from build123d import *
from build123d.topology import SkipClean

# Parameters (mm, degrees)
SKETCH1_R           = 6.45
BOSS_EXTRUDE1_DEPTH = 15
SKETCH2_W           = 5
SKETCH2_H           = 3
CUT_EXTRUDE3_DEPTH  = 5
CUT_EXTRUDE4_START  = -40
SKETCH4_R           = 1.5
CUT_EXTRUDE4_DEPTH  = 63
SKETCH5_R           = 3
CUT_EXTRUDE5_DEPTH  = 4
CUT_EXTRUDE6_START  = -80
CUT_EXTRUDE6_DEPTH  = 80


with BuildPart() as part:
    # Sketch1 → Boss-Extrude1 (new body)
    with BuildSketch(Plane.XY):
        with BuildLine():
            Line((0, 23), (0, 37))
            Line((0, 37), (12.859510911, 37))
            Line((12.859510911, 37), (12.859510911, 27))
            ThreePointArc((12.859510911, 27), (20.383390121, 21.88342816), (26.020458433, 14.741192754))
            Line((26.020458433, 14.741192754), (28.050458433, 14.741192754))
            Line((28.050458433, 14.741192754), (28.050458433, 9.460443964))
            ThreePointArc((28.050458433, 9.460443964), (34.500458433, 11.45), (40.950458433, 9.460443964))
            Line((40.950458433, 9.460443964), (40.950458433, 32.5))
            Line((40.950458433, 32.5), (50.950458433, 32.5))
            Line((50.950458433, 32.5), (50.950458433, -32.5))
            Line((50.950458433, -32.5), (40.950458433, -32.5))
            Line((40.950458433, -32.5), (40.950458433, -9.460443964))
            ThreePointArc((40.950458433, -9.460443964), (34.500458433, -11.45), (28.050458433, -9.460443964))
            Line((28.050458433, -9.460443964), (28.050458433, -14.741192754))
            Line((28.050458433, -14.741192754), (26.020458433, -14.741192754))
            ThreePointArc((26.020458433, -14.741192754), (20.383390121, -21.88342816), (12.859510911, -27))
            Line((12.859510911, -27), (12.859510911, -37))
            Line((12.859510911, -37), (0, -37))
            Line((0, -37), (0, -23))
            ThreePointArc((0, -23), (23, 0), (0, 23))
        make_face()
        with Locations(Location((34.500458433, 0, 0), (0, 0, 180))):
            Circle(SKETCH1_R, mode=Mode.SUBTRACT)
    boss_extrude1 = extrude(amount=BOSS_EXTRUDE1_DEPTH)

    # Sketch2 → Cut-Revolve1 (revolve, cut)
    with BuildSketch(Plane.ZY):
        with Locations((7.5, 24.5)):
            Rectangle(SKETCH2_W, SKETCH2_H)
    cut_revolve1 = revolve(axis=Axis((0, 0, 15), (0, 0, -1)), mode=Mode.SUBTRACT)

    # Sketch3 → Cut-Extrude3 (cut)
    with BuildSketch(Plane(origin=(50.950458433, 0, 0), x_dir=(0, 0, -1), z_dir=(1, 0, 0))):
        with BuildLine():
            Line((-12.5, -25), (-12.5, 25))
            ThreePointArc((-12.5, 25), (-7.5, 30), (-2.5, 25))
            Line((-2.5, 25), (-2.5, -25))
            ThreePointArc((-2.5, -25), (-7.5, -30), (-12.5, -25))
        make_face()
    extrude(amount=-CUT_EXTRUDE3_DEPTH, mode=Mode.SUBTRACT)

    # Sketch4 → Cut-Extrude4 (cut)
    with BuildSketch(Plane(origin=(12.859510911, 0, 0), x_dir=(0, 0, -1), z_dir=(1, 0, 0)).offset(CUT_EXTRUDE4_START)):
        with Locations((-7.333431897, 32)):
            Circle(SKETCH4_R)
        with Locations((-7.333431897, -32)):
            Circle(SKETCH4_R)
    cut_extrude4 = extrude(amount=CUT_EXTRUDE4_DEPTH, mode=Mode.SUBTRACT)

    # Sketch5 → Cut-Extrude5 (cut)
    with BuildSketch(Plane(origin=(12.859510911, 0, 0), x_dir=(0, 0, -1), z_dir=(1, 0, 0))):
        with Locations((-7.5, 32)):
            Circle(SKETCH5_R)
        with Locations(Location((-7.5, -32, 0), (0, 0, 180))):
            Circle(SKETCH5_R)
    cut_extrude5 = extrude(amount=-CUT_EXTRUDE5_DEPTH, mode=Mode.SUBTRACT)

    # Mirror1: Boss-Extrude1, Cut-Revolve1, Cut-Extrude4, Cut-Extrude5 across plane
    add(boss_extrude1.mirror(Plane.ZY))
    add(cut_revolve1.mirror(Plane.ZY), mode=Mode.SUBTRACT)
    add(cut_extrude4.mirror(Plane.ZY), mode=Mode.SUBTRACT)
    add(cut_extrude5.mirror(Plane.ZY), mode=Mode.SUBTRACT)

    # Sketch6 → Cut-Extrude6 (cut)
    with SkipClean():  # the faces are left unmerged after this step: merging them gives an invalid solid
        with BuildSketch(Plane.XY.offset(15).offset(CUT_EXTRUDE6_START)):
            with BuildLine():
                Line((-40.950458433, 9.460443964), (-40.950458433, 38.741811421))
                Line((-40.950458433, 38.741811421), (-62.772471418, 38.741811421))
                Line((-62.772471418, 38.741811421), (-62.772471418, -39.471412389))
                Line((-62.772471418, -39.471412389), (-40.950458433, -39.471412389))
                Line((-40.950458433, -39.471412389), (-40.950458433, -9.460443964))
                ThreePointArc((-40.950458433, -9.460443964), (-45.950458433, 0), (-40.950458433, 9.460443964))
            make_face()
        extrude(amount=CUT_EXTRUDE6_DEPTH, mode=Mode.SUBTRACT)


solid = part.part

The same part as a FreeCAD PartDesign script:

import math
import FreeCAD as App
import Part
import Sketcher
from FreeCAD import Vector
Q = App.Units.Quantity


def add_polygon(sketch, points):
    """Adds a closed chain of lines whose ends are joined by coincident constraints."""
    first, n = sketch.GeometryCount, len(points)
    for a, b in zip(points, points[1:] + points[:1]):
        sketch.addGeometry(Part.LineSegment(App.Vector(*a, 0), App.Vector(*b, 0)), False)
    for i in range(n):
        sketch.addConstraint(Sketcher.Constraint("Coincident", first + i, 2, first + (i + 1) % n, 1))

doc = App.newDocument("Part")
body = doc.addObject("PartDesign::Body", "Body")

sketch1 = body.newObject("Sketcher::SketchObject", "Sketch")
sketch1.AttachmentSupport = (doc.getObject("XY_Plane"), [""])
sketch1.MapMode = "FlatFace"
sketch1.addGeometry(Part.LineSegment(Vector(0, 37, 0), Vector(0, 23, 0)), False)
sketch1.addGeometry(Part.ArcOfCircle(Part.Circle(Vector(0, 0, 0), Vector(0, 0, 1), 23), math.radians(-90), math.radians(90)), False)
sketch1.addGeometry(Part.LineSegment(Vector(0, -23, 0), Vector(0, -37, 0)), False)
sketch1.addGeometry(Part.LineSegment(Vector(0, -37, 0), Vector(12.859511, -37, 0)), False)
sketch1.addGeometry(Part.LineSegment(Vector(12.859511, -37, 0), Vector(12.859511, -27, 0)), False)
sketch1.addGeometry(Part.ArcOfCircle(Part.Circle(Vector(0, 0, 0), Vector(0, 0, 1), 29.90597), math.radians(-64.532559), math.radians(-29.532559)), False)
sketch1.addGeometry(Part.LineSegment(Vector(26.020458, -14.741193, 0), Vector(28.050458, -14.741193, 0)), False)
sketch1.addGeometry(Part.LineSegment(Vector(28.050458, -14.741193, 0), Vector(28.050458, -9.460444, 0)), False)
sketch1.addGeometry(Part.ArcOfCircle(Part.Circle(Vector(34.500458, 0, 0), Vector(0, 0, 1), 11.45), math.radians(-124.285625), math.radians(-55.714375)), False)
sketch1.addGeometry(Part.LineSegment(Vector(40.950458, -9.460444, 0), Vector(40.950458, -32.5, 0)), False)
sketch1.addGeometry(Part.LineSegment(Vector(40.950458, -32.5, 0), Vector(50.950458, -32.5, 0)), False)
sketch1.addGeometry(Part.LineSegment(Vector(50.950458, -32.5, 0), Vector(50.950458, 32.5, 0)), False)
sketch1.addGeometry(Part.LineSegment(Vector(50.950458, 32.5, 0), Vector(40.950458, 32.5, 0)), False)
sketch1.addGeometry(Part.LineSegment(Vector(40.950458, 32.5, 0), Vector(40.950458, 9.460444, 0)), False)
sketch1.addGeometry(Part.ArcOfCircle(Part.Circle(Vector(34.500458, 0, 0), Vector(0, 0, 1), 11.45), math.radians(55.714375), math.radians(124.285625)), False)
sketch1.addGeometry(Part.LineSegment(Vector(28.050458, 9.460444, 0), Vector(28.050458, 14.741193, 0)), False)
sketch1.addGeometry(Part.LineSegment(Vector(28.050458, 14.741193, 0), Vector(26.020458, 14.741193, 0)), False)
sketch1.addGeometry(Part.ArcOfCircle(Part.Circle(Vector(0, 0, 0), Vector(0, 0, 1), 29.90597), math.radians(29.532559), math.radians(64.532559)), False)
sketch1.addGeometry(Part.LineSegment(Vector(12.859511, 27, 0), Vector(12.859511, 37, 0)), False)
sketch1.addGeometry(Part.LineSegment(Vector(12.859511, 37, 0), Vector(0, 37, 0)), False)
sketch1.addGeometry(Part.Circle(Vector(34.500458, 0, 0), Vector(0, 0, 1), 6.45), False)
sketch1.addConstraint(Sketcher.Constraint("Coincident", 0, 2, 1, 2))
sketch1.addConstraint(Sketcher.Constraint("Coincident", 1, 1, 2, 1))
sketch1.addConstraint(Sketcher.Constraint("Coincident", 2, 2, 3, 1))
sketch1.addConstraint(Sketcher.Constraint("Coincident", 3, 2, 4, 1))
sketch1.addConstraint(Sketcher.Constraint("Coincident", 4, 2, 5, 1))
sketch1.addConstraint(Sketcher.Constraint("Coincident", 5, 2, 6, 1))
sketch1.addConstraint(Sketcher.Constraint("Coincident", 6, 2, 7, 1))
sketch1.addConstraint(Sketcher.Constraint("Coincident", 7, 2, 8, 1))
sketch1.addConstraint(Sketcher.Constraint("Coincident", 8, 2, 9, 1))
sketch1.addConstraint(Sketcher.Constraint("Coincident", 9, 2, 10, 1))
sketch1.addConstraint(Sketcher.Constraint("Coincident", 10, 2, 11, 1))
sketch1.addConstraint(Sketcher.Constraint("Coincident", 11, 2, 12, 1))
sketch1.addConstraint(Sketcher.Constraint("Coincident", 12, 2, 13, 1))
sketch1.addConstraint(Sketcher.Constraint("Coincident", 13, 2, 14, 1))
sketch1.addConstraint(Sketcher.Constraint("Coincident", 14, 2, 15, 1))
sketch1.addConstraint(Sketcher.Constraint("Coincident", 15, 2, 16, 1))
sketch1.addConstraint(Sketcher.Constraint("Coincident", 16, 2, 17, 1))
sketch1.addConstraint(Sketcher.Constraint("Coincident", 17, 2, 18, 1))
sketch1.addConstraint(Sketcher.Constraint("Coincident", 18, 2, 19, 1))
sketch1.addConstraint(Sketcher.Constraint("Coincident", 19, 2, 0, 1))
sketch1.addConstraint(Sketcher.Constraint("Vertical", 0))
sketch1.addConstraint(Sketcher.Constraint("Vertical", 2))
sketch1.addConstraint(Sketcher.Constraint("Horizontal", 3))
sketch1.addConstraint(Sketcher.Constraint("Vertical", 4))
sketch1.addConstraint(Sketcher.Constraint("Horizontal", 6))
sketch1.addConstraint(Sketcher.Constraint("Vertical", 7))
sketch1.addConstraint(Sketcher.Constraint("Vertical", 9))
sketch1.addConstraint(Sketcher.Constraint("Horizontal", 10))
sketch1.addConstraint(Sketcher.Constraint("Vertical", 11))
sketch1.addConstraint(Sketcher.Constraint("Horizontal", 12))
sketch1.addConstraint(Sketcher.Constraint("Vertical", 13))
sketch1.addConstraint(Sketcher.Constraint("Vertical", 15))
sketch1.addConstraint(Sketcher.Constraint("Horizontal", 16))
sketch1.addConstraint(Sketcher.Constraint("Vertical", 18))
sketch1.addConstraint(Sketcher.Constraint("Horizontal", 19))
sketch1.addConstraint(Sketcher.Constraint("Coincident", 1, 3, -1, 1))
sketch1.addConstraint(Sketcher.Constraint("Coincident", 5, 3, -1, 1))
sketch1.addConstraint(Sketcher.Constraint("Coincident", 17, 3, -1, 1))
sketch1.addConstraint(Sketcher.Constraint("Coincident", 14, 3, 8, 3))
sketch1.addConstraint(Sketcher.Constraint("Coincident", 20, 3, 8, 3))
sketch1.addConstraint(Sketcher.Constraint("Equal", 8, 14))
sketch1.addConstraint(Sketcher.Constraint("Equal", 5, 17))
sketch1.addConstraint(Sketcher.Constraint("Symmetric", 2, 2, 19, 2, -1, 1))
sketch1.addConstraint(Sketcher.Constraint("Symmetric", 9, 2, 12, 2, -1))
sketch1.addConstraint(Sketcher.Constraint("Symmetric", 7, 2, 14, 2, -1))
sketch1.addConstraint(Sketcher.Constraint("PointOnObject", 0, 2, -2))
sketch1.addConstraint(Sketcher.Constraint("Horizontal", 7, 2, 8, 2))
sketch1.addConstraint(Sketcher.Constraint("Vertical", 5, 2, 16, 2))
sketch1.addConstraint(Sketcher.Constraint("Vertical", 4, 2, 17, 2))
sketch1.addConstraint(Sketcher.Constraint("Equal", 12, 4))
sketch1.addConstraint(Sketcher.Constraint("Radius", 1, Q("23 mm")))
sketch1.addConstraint(Sketcher.Constraint("Diameter", 20, Q("12.9 mm")))
sketch1.addConstraint(Sketcher.Constraint("DistanceX", 10, 1, 10, 2, Q("10 mm")))
sketch1.addConstraint(Sketcher.Constraint("DistanceY", 0, 2, 0, 1, Q("14 mm")))
sketch1.addConstraint(Sketcher.Constraint("DistanceY", 11, 1, 11, 2, Q("65 mm")))
sketch1.addConstraint(Sketcher.Constraint("Radius", 8, Q("11.45 mm")))
sketch1.addConstraint(Sketcher.Constraint("DistanceX", 6, 1, 6, 2, Q("2.03 mm")))
sketch1.addConstraint(Sketcher.Constraint("DistanceX", 7, 2, 8, 2, Q("12.9 mm")))
sketch1.addConstraint(Sketcher.Constraint("Radius", 5, Q("29.90597 mm")))
sketch1.addConstraint(Sketcher.Constraint("DistanceY", 7, 1, 7, 2, Q("5.280749 mm")))
pad1 = body.newObject("PartDesign::Pad", "Pad")
pad1.Profile = sketch1
pad1.Length = 15

sketch2 = body.newObject("Sketcher::SketchObject", "Sketch001")
sketch2.AttachmentSupport = (doc.getObject("YZ_Plane"), [""])
sketch2.MapMode = "FlatFace"
add_polygon(sketch2, [(26, 5), (23, 5), (23, 10), (26, 10)])
sketch2.addConstraint(Sketcher.Constraint("Horizontal", 0))
sketch2.addConstraint(Sketcher.Constraint("Vertical", 1))
sketch2.addConstraint(Sketcher.Constraint("Horizontal", 2))
sketch2.addConstraint(Sketcher.Constraint("Vertical", 3))
sketch2.addConstraint(Sketcher.Constraint("DistanceX", 0, 2, 0, 1, Q("3 mm")))
sketch2.addConstraint(Sketcher.Constraint("DistanceY", 1, 1, 1, 2, Q("5 mm")))
sketch2.addConstraint(Sketcher.Constraint("DistanceX", -1, 1, 0, 2, Q("23 mm")))
sketch2.addConstraint(Sketcher.Constraint("DistanceY", -1, 1, 0, 2, Q("5 mm")))
groove = body.newObject("PartDesign::Groove", "Groove")
groove.Profile = sketch2
groove.ReferenceAxis = (sketch2, ["V_Axis"])
groove.Angle = 360

sketch3 = body.newObject("Sketcher::SketchObject", "Sketch002")
sketch3.AttachmentSupport = (doc.getObject("YZ_Plane"), [""])
sketch3.MapMode = "FlatFace"
sketch3.AttachmentOffset = App.Placement(Vector(0, 0, 50.950458), App.Rotation())
sketch3.addGeometry(Part.LineSegment(Vector(25, 12.5, 0), Vector(-25, 12.5, 0)), False)
sketch3.addGeometry(Part.ArcOfCircle(Part.Circle(Vector(-25, 7.5, 0), Vector(0, 0, 1), 5), math.radians(90), math.radians(270)), False)
sketch3.addGeometry(Part.LineSegment(Vector(-25, 2.5, 0), Vector(25, 2.5, 0)), False)
sketch3.addGeometry(Part.ArcOfCircle(Part.Circle(Vector(25, 7.5, 0), Vector(0, 0, 1), 5), math.radians(-90), math.radians(90)), False)
sketch3.addConstraint(Sketcher.Constraint("Tangent", 0, 2, 1, 1))
sketch3.addConstraint(Sketcher.Constraint("Tangent", 1, 2, 2, 1))
sketch3.addConstraint(Sketcher.Constraint("Tangent", 2, 2, 3, 1))
sketch3.addConstraint(Sketcher.Constraint("Tangent", 3, 2, 0, 1))
sketch3.addConstraint(Sketcher.Constraint("Horizontal", 0))
sketch3.addConstraint(Sketcher.Constraint("Horizontal", 2))
sketch3.addConstraint(Sketcher.Constraint("Radius", 1, Q("5 mm")))
sketch3.addConstraint(Sketcher.Constraint("DistanceX", 0, 2, 0, 1, Q("50 mm")))
sketch3.addConstraint(Sketcher.Constraint("DistanceX", 1, 3, -1, 1, Q("25 mm")))
sketch3.addConstraint(Sketcher.Constraint("DistanceY", -1, 1, 1, 3, Q("7.5 mm")))
pocket1 = body.newObject("PartDesign::Pocket", "Pocket")
pocket1.Profile = sketch3
pocket1.Length = 5

sketch4 = body.newObject("Sketcher::SketchObject", "Sketch003")
sketch4.AttachmentSupport = (doc.getObject("YZ_Plane"), [""])
sketch4.MapMode = "FlatFace"
sketch4.AttachmentOffset = App.Placement(Vector(0, 0, -27.140489), App.Rotation())
sketch4.addGeometry(Part.Circle(Vector(32, 7.333432, 0), Vector(0, 0, 1), 1.5), False)
sketch4.addGeometry(Part.Circle(Vector(-32, 7.333432, 0), Vector(0, 0, 1), 1.5), False)
sketch4.addConstraint(Sketcher.Constraint("Equal", 0, 1))
sketch4.addConstraint(Sketcher.Constraint("Symmetric", 0, 3, 1, 3, -2))
sketch4.addConstraint(Sketcher.Constraint("Diameter", 0, Q("3 mm")))
sketch4.addConstraint(Sketcher.Constraint("DistanceX", -1, 1, 0, 3, Q("32 mm")))
sketch4.addConstraint(Sketcher.Constraint("DistanceY", -1, 1, 0, 3, Q("7.333432 mm")))
pocket2 = body.newObject("PartDesign::Pocket", "Pocket001")
pocket2.Profile = sketch4
pocket2.Length = 63
pocket2.Reversed = True

sketch5 = body.newObject("Sketcher::SketchObject", "Sketch004")
sketch5.AttachmentSupport = (doc.getObject("YZ_Plane"), [""])
sketch5.MapMode = "FlatFace"
sketch5.AttachmentOffset = App.Placement(Vector(0, 0, 12.859511), App.Rotation())
sketch5.addGeometry(Part.Circle(Vector(32, 7.5, 0), Vector(0, 0, 1), 3), False)
sketch5.addGeometry(Part.Circle(Vector(-32, 7.5, 0), Vector(0, 0, 1), 3), False)
sketch5.addConstraint(Sketcher.Constraint("Equal", 0, 1))
sketch5.addConstraint(Sketcher.Constraint("Symmetric", 0, 3, 1, 3, -2))
sketch5.addConstraint(Sketcher.Constraint("Diameter", 0, Q("6 mm")))
sketch5.addConstraint(Sketcher.Constraint("DistanceX", -1, 1, 0, 3, Q("32 mm")))
sketch5.addConstraint(Sketcher.Constraint("DistanceY", -1, 1, 0, 3, Q("7.5 mm")))
pocket3 = body.newObject("PartDesign::Pocket", "Pocket002")
pocket3.Profile = sketch5
pocket3.Length = 4
doc.recompute()

mirrored = body.newObject("PartDesign::Mirrored", "Mirrored")
mirrored.Originals = [pad1, groove, pocket2, pocket3]
mirrored.MirrorPlane = (doc.getObject("YZ_Plane"), [""])
body.Tip = mirrored

sketch6 = body.newObject("Sketcher::SketchObject", "Sketch005")
sketch6.AttachmentSupport = (doc.getObject("XY_Plane"), [""])
sketch6.MapMode = "FlatFace"
sketch6.AttachmentOffset = App.Placement(Vector(0, 0, -65), App.Rotation())
sketch6.addGeometry(Part.LineSegment(Vector(-40.950458, 9.460444, 0), Vector(-40.950458, 38.741811, 0)), False)
sketch6.addGeometry(Part.LineSegment(Vector(-40.950458, 38.741811, 0), Vector(-62.772471, 38.741811, 0)), False)
sketch6.addGeometry(Part.LineSegment(Vector(-62.772471, 38.741811, 0), Vector(-62.772471, -39.471412, 0)), False)
sketch6.addGeometry(Part.LineSegment(Vector(-62.772471, -39.471412, 0), Vector(-40.950458, -39.471412, 0)), False)
sketch6.addGeometry(Part.LineSegment(Vector(-40.950458, -39.471412, 0), Vector(-40.950458, -9.460444, 0)), False)
sketch6.addGeometry(Part.ArcOfCircle(Part.Circle(Vector(-34.500458, 0, 0), Vector(0, 0, 1), 11.45), math.radians(124.285625), math.radians(235.714375)), False)
sketch6.addConstraint(Sketcher.Constraint("Coincident", 0, 2, 1, 1))
sketch6.addConstraint(Sketcher.Constraint("Coincident", 1, 2, 2, 1))
sketch6.addConstraint(Sketcher.Constraint("Coincident", 2, 2, 3, 1))
sketch6.addConstraint(Sketcher.Constraint("Coincident", 3, 2, 4, 1))
sketch6.addConstraint(Sketcher.Constraint("Coincident", 4, 2, 5, 2))
sketch6.addConstraint(Sketcher.Constraint("Coincident", 5, 1, 0, 1))
sketch6.addConstraint(Sketcher.Constraint("Vertical", 0))
sketch6.addConstraint(Sketcher.Constraint("Horizontal", 1))
sketch6.addConstraint(Sketcher.Constraint("Vertical", 2))
sketch6.addConstraint(Sketcher.Constraint("Horizontal", 3))
sketch6.addConstraint(Sketcher.Constraint("Vertical", 4))
sketch6.addConstraint(Sketcher.Constraint("Symmetric", 4, 2, 5, 1, -1))
sketch6.addConstraint(Sketcher.Constraint("Radius", 5, Q("11.45 mm")))
sketch6.addConstraint(Sketcher.Constraint("DistanceX", 0, 2, 5, 3, Q("6.45 mm")))
sketch6.addConstraint(Sketcher.Constraint("DistanceY", 4, 1, 4, 2, Q("30.010968 mm")))
sketch6.addConstraint(Sketcher.Constraint("DistanceX", 1, 2, 1, 1, Q("21.822013 mm")))
sketch6.addConstraint(Sketcher.Constraint("DistanceY", 0, 1, 0, 2, Q("29.281367 mm")))
sketch6.addConstraint(Sketcher.Constraint("DistanceX", 5, 3, -1, 1, Q("34.500458 mm")))
pocket4 = body.newObject("PartDesign::Pocket", "Pocket003")
pocket4.Profile = sketch6
pocket4.Length = 80
pocket4.Reversed = True

doc.recompute()
